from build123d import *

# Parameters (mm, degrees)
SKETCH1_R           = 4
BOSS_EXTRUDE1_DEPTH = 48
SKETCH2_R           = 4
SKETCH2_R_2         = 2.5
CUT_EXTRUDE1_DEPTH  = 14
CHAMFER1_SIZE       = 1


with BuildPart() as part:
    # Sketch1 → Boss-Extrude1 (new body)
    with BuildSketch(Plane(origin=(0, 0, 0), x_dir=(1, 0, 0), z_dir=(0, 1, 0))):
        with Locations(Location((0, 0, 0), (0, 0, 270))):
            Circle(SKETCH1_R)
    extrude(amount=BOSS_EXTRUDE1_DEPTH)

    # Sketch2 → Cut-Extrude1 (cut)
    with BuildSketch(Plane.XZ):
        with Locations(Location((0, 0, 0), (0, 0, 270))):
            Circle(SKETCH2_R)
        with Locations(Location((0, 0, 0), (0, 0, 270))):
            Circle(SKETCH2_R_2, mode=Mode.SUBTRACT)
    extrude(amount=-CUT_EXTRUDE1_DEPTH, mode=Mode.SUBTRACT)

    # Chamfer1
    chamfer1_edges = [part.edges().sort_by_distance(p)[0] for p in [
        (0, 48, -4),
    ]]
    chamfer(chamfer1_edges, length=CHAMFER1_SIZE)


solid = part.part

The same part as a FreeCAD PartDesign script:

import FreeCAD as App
import Part
import Sketcher
from FreeCAD import Vector
Q = App.Units.Quantity


def edges_at(feature, points):
    """Names of the edges that pass closest to the given points."""
    edges = feature.Shape.Edges
    near = lambda p: min(range(len(edges)), key=lambda i: edges[i].distToShape(Part.Vertex(*p))[0])
    return sorted({f"Edge{near(p) + 1}" for p in points})

doc = App.newDocument("Part")
body = doc.addObject("PartDesign::Body", "Body")

# Sketch on XZ plane
sketch1 = body.newObject("Sketcher::SketchObject", "Sketch")
sketch1.AttachmentSupport = (doc.getObject("XZ_Plane"), [""])
sketch1.MapMode = "FlatFace"
sketch1.addGeometry(Part.Circle(Vector(0, 0, 0), Vector(0, 0, 1), 4), False)
sketch1.addConstraint(Sketcher.Constraint("Coincident", 0, 3, -1, 1))
sketch1.addConstraint(Sketcher.Constraint("Diameter", 0, Q("8 mm")))
pad1 = body.newObject("PartDesign::Pad", "Pad")
pad1.Profile = sketch1
pad1.Length = 48
pad1.Reversed = True

# Sketch on XZ plane
sketch2 = body.newObject("Sketcher::SketchObject", "Sketch001")
sketch2.AttachmentSupport = (doc.getObject("XZ_Plane"), [""])
sketch2.MapMode = "FlatFace"
sketch2.addGeometry(Part.Circle(Vector(0, 0, 0), Vector(0, 0, 1), 4), False)
sketch2.addGeometry(Part.Circle(Vector(0, 0, 0), Vector(0, 0, 1), 2.5), False)
sketch2.addConstraint(Sketcher.Constraint("Coincident", 0, 3, -1, 1))
sketch2.addConstraint(Sketcher.Constraint("Coincident", 1, 3, -1, 1))
sketch2.addConstraint(Sketcher.Constraint("Diameter", 0, Q("8 mm")))
sketch2.addConstraint(Sketcher.Constraint("Diameter", 1, Q("5 mm")))
pocket1 = body.newObject("PartDesign::Pocket", "Pocket")
pocket1.Profile = sketch2
pocket1.Length = 14
doc.recompute()

chamfer = body.newObject("PartDesign::Chamfer", "Chamfer")
chamfer.Base = (pocket1, edges_at(pocket1, [(0, 48, -4)]))
chamfer.Size = 1

doc.recompute()
